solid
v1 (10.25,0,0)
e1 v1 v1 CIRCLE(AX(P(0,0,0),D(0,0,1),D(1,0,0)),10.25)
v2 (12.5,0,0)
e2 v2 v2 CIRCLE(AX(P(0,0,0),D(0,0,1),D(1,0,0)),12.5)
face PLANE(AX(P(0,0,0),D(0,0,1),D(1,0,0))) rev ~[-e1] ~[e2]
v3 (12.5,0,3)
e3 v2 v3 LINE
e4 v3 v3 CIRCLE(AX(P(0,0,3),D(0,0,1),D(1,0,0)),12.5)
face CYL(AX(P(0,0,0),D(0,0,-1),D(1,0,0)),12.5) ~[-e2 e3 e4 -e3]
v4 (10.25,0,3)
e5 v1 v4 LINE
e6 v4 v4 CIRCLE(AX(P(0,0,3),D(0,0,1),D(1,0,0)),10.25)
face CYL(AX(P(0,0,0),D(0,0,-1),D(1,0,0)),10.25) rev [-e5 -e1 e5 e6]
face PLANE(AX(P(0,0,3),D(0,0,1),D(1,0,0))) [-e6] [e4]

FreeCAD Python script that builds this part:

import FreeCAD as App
import Part
import Sketcher
Q = App.Units.Quantity

doc = App.newDocument("Part")
body = doc.addObject("PartDesign::Body", "Body")

# Sketch on XY plane
sketch1 = body.newObject("Sketcher::SketchObject", "Sketch")
sketch1.AttachmentSupport = (doc.getObject("XY_Plane"), [""])
sketch1.MapMode = "FlatFace"
sketch1.addGeometry(Part.Circle(App.Vector(0, 0, 0), App.Vector(0, 0, 1), 12), False)
sketch1.addGeometry(Part.Circle(App.Vector(0, 0, 0), App.Vector(0, 0, 1), 10), False)
sketch1.addConstraint(Sketcher.Constraint("Coincident", 0, 3, -1, 1))
sketch1.addConstraint(Sketcher.Constraint("Coincident", 1, 3, -1, 1))
sketch1.addConstraint(Sketcher.Constraint("Diameter", 0, Q("25 mm")))
sketch1.addConstraint(Sketcher.Constraint("Diameter", 1, Q("20.5 mm")))
pad1 = body.newObject("PartDesign::Pad", "Pad")
pad1.Profile = sketch1
pad1.Length = 3

doc.recompute()
